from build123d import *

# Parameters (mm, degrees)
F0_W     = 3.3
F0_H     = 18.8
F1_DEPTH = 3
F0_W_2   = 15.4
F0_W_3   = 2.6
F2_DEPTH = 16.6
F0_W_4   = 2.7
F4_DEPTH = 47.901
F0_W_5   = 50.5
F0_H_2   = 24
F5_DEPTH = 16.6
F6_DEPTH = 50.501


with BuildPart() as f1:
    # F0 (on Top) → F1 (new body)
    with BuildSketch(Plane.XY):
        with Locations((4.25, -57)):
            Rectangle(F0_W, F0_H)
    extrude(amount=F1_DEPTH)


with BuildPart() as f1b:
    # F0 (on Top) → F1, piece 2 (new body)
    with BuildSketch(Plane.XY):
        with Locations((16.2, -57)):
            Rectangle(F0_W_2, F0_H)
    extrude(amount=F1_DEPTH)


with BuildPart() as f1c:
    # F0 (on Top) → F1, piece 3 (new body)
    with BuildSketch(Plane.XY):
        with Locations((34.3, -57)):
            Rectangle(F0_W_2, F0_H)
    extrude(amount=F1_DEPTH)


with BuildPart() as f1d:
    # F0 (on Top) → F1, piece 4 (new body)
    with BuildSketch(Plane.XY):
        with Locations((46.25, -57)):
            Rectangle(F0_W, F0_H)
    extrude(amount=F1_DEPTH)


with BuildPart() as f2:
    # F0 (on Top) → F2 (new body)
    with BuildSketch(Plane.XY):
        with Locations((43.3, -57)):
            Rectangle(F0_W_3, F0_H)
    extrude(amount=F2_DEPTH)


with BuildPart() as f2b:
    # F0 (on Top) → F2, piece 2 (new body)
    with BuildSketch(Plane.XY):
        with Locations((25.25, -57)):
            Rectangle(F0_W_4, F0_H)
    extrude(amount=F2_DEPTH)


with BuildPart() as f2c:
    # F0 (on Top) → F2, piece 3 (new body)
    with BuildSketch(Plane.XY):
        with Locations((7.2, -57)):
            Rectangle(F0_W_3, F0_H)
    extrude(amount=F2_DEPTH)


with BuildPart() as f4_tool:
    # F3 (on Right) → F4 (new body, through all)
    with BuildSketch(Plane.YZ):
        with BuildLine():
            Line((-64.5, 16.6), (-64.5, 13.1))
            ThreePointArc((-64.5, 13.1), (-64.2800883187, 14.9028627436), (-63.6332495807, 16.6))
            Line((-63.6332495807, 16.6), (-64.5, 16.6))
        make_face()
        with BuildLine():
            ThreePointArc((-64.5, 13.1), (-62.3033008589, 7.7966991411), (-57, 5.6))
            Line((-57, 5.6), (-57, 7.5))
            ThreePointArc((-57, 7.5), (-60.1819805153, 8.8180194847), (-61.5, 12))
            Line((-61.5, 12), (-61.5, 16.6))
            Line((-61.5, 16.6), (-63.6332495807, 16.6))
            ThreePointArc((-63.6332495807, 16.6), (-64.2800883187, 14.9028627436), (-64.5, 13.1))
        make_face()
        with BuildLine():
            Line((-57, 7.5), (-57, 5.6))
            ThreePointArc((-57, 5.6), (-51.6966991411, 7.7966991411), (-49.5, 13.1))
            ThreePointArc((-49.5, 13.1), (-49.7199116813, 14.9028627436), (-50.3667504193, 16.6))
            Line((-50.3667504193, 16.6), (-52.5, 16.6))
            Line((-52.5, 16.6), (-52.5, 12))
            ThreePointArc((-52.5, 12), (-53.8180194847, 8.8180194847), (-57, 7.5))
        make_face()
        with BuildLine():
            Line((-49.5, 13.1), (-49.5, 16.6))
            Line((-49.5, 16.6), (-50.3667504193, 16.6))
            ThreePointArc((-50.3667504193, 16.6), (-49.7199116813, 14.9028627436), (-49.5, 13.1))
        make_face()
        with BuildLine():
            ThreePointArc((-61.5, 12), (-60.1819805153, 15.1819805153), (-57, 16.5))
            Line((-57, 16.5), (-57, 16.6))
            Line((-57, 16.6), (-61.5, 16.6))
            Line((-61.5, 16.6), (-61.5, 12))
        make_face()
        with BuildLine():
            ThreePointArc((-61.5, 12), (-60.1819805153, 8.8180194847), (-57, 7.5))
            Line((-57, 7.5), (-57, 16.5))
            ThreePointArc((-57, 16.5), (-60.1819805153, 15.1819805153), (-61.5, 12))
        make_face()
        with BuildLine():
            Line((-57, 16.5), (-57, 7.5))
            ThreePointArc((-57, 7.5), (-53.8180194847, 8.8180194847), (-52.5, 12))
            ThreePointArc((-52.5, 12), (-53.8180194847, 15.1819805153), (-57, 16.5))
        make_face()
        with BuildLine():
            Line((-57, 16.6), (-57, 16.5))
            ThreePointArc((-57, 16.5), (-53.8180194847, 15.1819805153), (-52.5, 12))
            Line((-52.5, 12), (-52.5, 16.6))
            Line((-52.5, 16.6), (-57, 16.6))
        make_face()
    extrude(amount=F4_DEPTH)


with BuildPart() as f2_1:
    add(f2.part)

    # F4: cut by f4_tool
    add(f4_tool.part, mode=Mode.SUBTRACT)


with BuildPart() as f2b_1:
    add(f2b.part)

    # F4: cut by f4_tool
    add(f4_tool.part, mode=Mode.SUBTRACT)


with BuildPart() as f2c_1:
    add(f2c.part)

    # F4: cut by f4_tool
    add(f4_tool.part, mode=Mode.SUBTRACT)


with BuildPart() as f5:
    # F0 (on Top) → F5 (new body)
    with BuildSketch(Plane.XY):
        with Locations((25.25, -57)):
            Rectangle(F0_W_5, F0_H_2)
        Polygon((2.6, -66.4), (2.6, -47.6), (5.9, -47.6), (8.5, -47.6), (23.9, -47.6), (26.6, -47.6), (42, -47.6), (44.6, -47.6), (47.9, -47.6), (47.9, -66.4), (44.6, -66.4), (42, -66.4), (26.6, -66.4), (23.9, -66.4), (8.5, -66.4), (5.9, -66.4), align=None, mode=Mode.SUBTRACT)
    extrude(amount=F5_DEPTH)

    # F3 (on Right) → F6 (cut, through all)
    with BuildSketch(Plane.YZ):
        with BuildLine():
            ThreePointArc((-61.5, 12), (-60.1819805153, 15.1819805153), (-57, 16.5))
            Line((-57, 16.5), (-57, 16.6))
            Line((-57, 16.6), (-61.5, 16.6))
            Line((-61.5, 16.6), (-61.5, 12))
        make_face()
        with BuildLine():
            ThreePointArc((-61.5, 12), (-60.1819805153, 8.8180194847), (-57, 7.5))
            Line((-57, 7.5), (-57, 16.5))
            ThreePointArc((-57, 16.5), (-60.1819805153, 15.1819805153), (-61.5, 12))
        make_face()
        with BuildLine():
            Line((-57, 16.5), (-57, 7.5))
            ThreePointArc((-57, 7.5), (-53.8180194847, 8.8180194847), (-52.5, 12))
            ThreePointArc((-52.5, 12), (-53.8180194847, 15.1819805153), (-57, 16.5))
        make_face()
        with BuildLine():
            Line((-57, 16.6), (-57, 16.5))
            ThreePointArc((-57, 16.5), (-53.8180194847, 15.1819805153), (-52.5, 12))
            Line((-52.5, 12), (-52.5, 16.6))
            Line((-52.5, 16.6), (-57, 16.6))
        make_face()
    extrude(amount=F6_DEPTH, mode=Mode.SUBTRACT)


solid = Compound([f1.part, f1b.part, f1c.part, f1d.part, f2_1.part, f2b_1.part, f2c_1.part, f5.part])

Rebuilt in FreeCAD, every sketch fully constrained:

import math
import FreeCAD as App
import Part
import Sketcher
from FreeCAD import Vector


def add_polygon(sketch, points):
    """Adds a closed chain of lines whose ends are joined by coincident constraints."""
    first, n = sketch.GeometryCount, len(points)
    for a, b in zip(points, points[1:] + points[:1]):
        sketch.addGeometry(Part.LineSegment(App.Vector(*a, 0), App.Vector(*b, 0)), False)
    for i in range(n):
        sketch.addConstraint(Sketcher.Constraint("Coincident", first + i, 2, first + (i + 1) % n, 1))

doc = App.newDocument("Part")
params = doc.addObject("Spreadsheet::Sheet", "Params")
for row, (alias, value) in enumerate([
    ("sketch1_width", "3.3 mm"),
    ("sketch1_height", "18.8 mm"),
    ("pad1_length", "3 mm"),
    ("sketch2_width", "15.4 mm"),
    ("sketch2_height", "18.8 mm"),
    ("pad2_length", "3 mm"),
    ("sketch3_width", "15.4 mm"),
    ("sketch3_height", "18.8 mm"),
    ("pad3_length", "3 mm"),
    ("sketch4_width", "3.3 mm"),
    ("sketch4_height", "18.8 mm"),
    ("pad4_length", "3 mm"),
    ("sketch5_width", "2.6 mm"),
    ("sketch5_height", "18.8 mm"),
    ("pad5_length", "16.6 mm"),
    ("sketch6_width", "2.7 mm"),
    ("sketch6_height", "18.8 mm"),
    ("pad6_length", "16.6 mm"),
    ("sketch7_width", "2.6 mm"),
    ("sketch7_height", "18.8 mm"),
    ("pad7_length", "16.6 mm"),
    ("sketch8_radius", "7.5 mm"),
    ("sketch8_height", "3.5 mm"),
    ("pad8_length", "47.901 mm"),
    ("sketch9_height", "24 mm"),
    ("sketch9_width", "50.5 mm"),
    ("sketch9_width2", "45.3 mm"),
    ("sketch9_height2", "18.8 mm"),
    ("pad9_length", "16.6 mm"),
    ("sketch10_radius", "4.5 mm"),
    ("sketch10_height", "4.6 mm"),
], start=1):
    params.set(f"A{row}", alias)
    params.set(f"B{row}", "=" + value)
    params.setAlias(f"B{row}", alias)

body = doc.addObject("PartDesign::Body", "Body")

# Sketch on XY plane
sketch1 = body.newObject("Sketcher::SketchObject", "Sketch")
sketch1.AttachmentSupport = (doc.getObject("XY_Plane"), [""])
sketch1.MapMode = "FlatFace"
add_polygon(sketch1, [(2.6, -47.6), (2.6, -66.4), (5.9, -66.4), (5.9, -47.6)])  # lines 0-3
sketch1.addConstraint(Sketcher.Constraint("Vertical", 0))
sketch1.addConstraint(Sketcher.Constraint("Horizontal", 1))
sketch1.addConstraint(Sketcher.Constraint("Vertical", 2))
sketch1.addConstraint(Sketcher.Constraint("Horizontal", 3))
sketch1.addConstraint(Sketcher.Constraint("DistanceX", 1, 1, 1, 2, 3.3))
sketch1.addConstraint(Sketcher.Constraint("DistanceY", 0, 2, 0, 1, 18.8))
sketch1.addConstraint(Sketcher.Constraint("DistanceX", -1, 1, 0, 2, 2.6))
sketch1.addConstraint(Sketcher.Constraint("DistanceY", 0, 2, -1, 1, 66.4))
sketch1.setExpression("Constraints[8]", "Params.sketch1_width")
sketch1.setExpression("Constraints[9]", "Params.sketch1_height")
pad1 = body.newObject("PartDesign::Pad", "Pad")
pad1.Profile = sketch1
pad1.setExpression("Length", "Params.pad1_length")
body2 = doc.addObject("PartDesign::Body", "Body001")

# Sketch on XY plane
sketch2 = body2.newObject("Sketcher::SketchObject", "Sketch001")
sketch2.AttachmentSupport = (doc.getObject("XY_Plane001"), [""])
sketch2.MapMode = "FlatFace"
add_polygon(sketch2, [(8.5, -47.6), (8.5, -66.4), (23.9, -66.4), (23.9, -47.6)])  # lines 0-3
sketch2.addConstraint(Sketcher.Constraint("Vertical", 0))
sketch2.addConstraint(Sketcher.Constraint("Horizontal", 1))
sketch2.addConstraint(Sketcher.Constraint("Vertical", 2))
sketch2.addConstraint(Sketcher.Constraint("Horizontal", 3))
sketch2.addConstraint(Sketcher.Constraint("DistanceX", 1, 1, 1, 2, 15.4))
sketch2.addConstraint(Sketcher.Constraint("DistanceY", 0, 2, 0, 1, 18.8))
sketch2.addConstraint(Sketcher.Constraint("DistanceX", -1, 1, 0, 2, 8.5))
sketch2.addConstraint(Sketcher.Constraint("DistanceY", 0, 2, -1, 1, 66.4))
sketch2.setExpression("Constraints[8]", "Params.sketch2_width")
sketch2.setExpression("Constraints[9]", "Params.sketch2_height")
pad2 = body2.newObject("PartDesign::Pad", "Pad001")
pad2.Profile = sketch2
pad2.setExpression("Length", "Params.pad2_length")
body3 = doc.addObject("PartDesign::Body", "Body002")

# Sketch on XY plane
sketch3 = body3.newObject("Sketcher::SketchObject", "Sketch002")
sketch3.AttachmentSupport = (doc.getObject("XY_Plane002"), [""])
sketch3.MapMode = "FlatFace"
add_polygon(sketch3, [(26.6, -47.6), (26.6, -66.4), (42, -66.4), (42, -47.6)])  # lines 0-3
sketch3.addConstraint(Sketcher.Constraint("Vertical", 0))
sketch3.addConstraint(Sketcher.Constraint("Horizontal", 1))
sketch3.addConstraint(Sketcher.Constraint("Vertical", 2))
sketch3.addConstraint(Sketcher.Constraint("Horizontal", 3))
sketch3.addConstraint(Sketcher.Constraint("DistanceX", 1, 1, 1, 2, 15.4))
sketch3.addConstraint(Sketcher.Constraint("DistanceY", 0, 2, 0, 1, 18.8))
sketch3.addConstraint(Sketcher.Constraint("DistanceX", -1, 1, 1, 2, 42.0))
sketch3.addConstraint(Sketcher.Constraint("DistanceY", 0, 2, -1, 1, 66.4))
sketch3.setExpression("Constraints[8]", "Params.sketch3_width")
sketch3.setExpression("Constraints[9]", "Params.sketch3_height")
pad3 = body3.newObject("PartDesign::Pad", "Pad002")
pad3.Profile = sketch3
pad3.setExpression("Length", "Params.pad3_length")
body4 = doc.addObject("PartDesign::Body", "Body003")

# Sketch on XY plane
sketch4 = body4.newObject("Sketcher::SketchObject", "Sketch003")
sketch4.AttachmentSupport = (doc.getObject("XY_Plane003"), [""])
sketch4.MapMode = "FlatFace"
add_polygon(sketch4, [(44.6, -47.6), (44.6, -66.4), (47.9, -66.4), (47.9, -47.6)])  # lines 0-3
sketch4.addConstraint(Sketcher.Constraint("Vertical", 0))
sketch4.addConstraint(Sketcher.Constraint("Horizontal", 1))
sketch4.addConstraint(Sketcher.Constraint("Vertical", 2))
sketch4.addConstraint(Sketcher.Constraint("Horizontal", 3))
sketch4.addConstraint(Sketcher.Constraint("DistanceX", 1, 1, 1, 2, 3.3))
sketch4.addConstraint(Sketcher.Constraint("DistanceY", 0, 2, 0, 1, 18.8))
sketch4.addConstraint(Sketcher.Constraint("DistanceX", -1, 1, 0, 2, 44.6))
sketch4.addConstraint(Sketcher.Constraint("DistanceY", 0, 2, -1, 1, 66.4))
sketch4.setExpression("Constraints[8]", "Params.sketch4_width")
sketch4.setExpression("Constraints[9]", "Params.sketch4_height")
pad4 = body4.newObject("PartDesign::Pad", "Pad003")
pad4.Profile = sketch4
pad4.setExpression("Length", "Params.pad4_length")
body5 = doc.addObject("PartDesign::Body", "Body004")

# Sketch on XY plane
sketch5 = body5.newObject("Sketcher::SketchObject", "Sketch004")
sketch5.AttachmentSupport = (doc.getObject("XY_Plane004"), [""])
sketch5.MapMode = "FlatFace"
add_polygon(sketch5, [(42, -47.6), (42, -66.4), (44.6, -66.4), (44.6, -47.6)])  # lines 0-3
sketch5.addConstraint(Sketcher.Constraint("Vertical", 0))
sketch5.addConstraint(Sketcher.Constraint("Horizontal", 1))
sketch5.addConstraint(Sketcher.Constraint("Vertical", 2))
sketch5.addConstraint(Sketcher.Constraint("Horizontal", 3))
sketch5.addConstraint(Sketcher.Constraint("DistanceX", 1, 1, 1, 2, 2.6))
sketch5.addConstraint(Sketcher.Constraint("DistanceY", 0, 2, 0, 1, 18.8))
sketch5.addConstraint(Sketcher.Constraint("DistanceX", -1, 1, 0, 2, 42.0))
sketch5.addConstraint(Sketcher.Constraint("DistanceY", 0, 2, -1, 1, 66.4))
sketch5.setExpression("Constraints[8]", "Params.sketch5_width")
sketch5.setExpression("Constraints[9]", "Params.sketch5_height")
pad5 = body5.newObject("PartDesign::Pad", "Pad004")
pad5.Profile = sketch5
pad5.setExpression("Length", "Params.pad5_length")
body6 = doc.addObject("PartDesign::Body", "Body005")

# Sketch on XY plane
sketch6 = body6.newObject("Sketcher::SketchObject", "Sketch005")
sketch6.AttachmentSupport = (doc.getObject("XY_Plane005"), [""])
sketch6.MapMode = "FlatFace"
add_polygon(sketch6, [(23.9, -47.6), (23.9, -66.4), (26.6, -66.4), (26.6, -47.6)])  # lines 0-3
sketch6.addConstraint(Sketcher.Constraint("Vertical", 0))
sketch6.addConstraint(Sketcher.Constraint("Horizontal", 1))
sketch6.addConstraint(Sketcher.Constraint("Vertical", 2))
sketch6.addConstraint(Sketcher.Constraint("Horizontal", 3))
sketch6.addConstraint(Sketcher.Constraint("DistanceX", 1, 1, 1, 2, 2.7))
sketch6.addConstraint(Sketcher.Constraint("DistanceY", 0, 2, 0, 1, 18.8))
sketch6.addConstraint(Sketcher.Constraint("DistanceX", -1, 1, 0, 2, 23.9))
sketch6.addConstraint(Sketcher.Constraint("DistanceY", 0, 2, -1, 1, 66.4))
sketch6.setExpression("Constraints[8]", "Params.sketch6_width")
sketch6.setExpression("Constraints[9]", "Params.sketch6_height")
pad6 = body6.newObject("PartDesign::Pad", "Pad005")
pad6.Profile = sketch6
pad6.setExpression("Length", "Params.pad6_length")
body7 = doc.addObject("PartDesign::Body", "Body006")

# Sketch on XY plane
sketch7 = body7.newObject("Sketcher::SketchObject", "Sketch006")
sketch7.AttachmentSupport = (doc.getObject("XY_Plane006"), [""])
sketch7.MapMode = "FlatFace"
add_polygon(sketch7, [(5.9, -47.6), (5.9, -66.4), (8.5, -66.4), (8.5, -47.6)])  # lines 0-3
sketch7.addConstraint(Sketcher.Constraint("Vertical", 0))
sketch7.addConstraint(Sketcher.Constraint("Horizontal", 1))
sketch7.addConstraint(Sketcher.Constraint("Vertical", 2))
sketch7.addConstraint(Sketcher.Constraint("Horizontal", 3))
sketch7.addConstraint(Sketcher.Constraint("DistanceX", 1, 1, 1, 2, 2.6))
sketch7.addConstraint(Sketcher.Constraint("DistanceY", 0, 2, 0, 1, 18.8))
sketch7.addConstraint(Sketcher.Constraint("DistanceX", -1, 1, 0, 2, 5.9))
sketch7.addConstraint(Sketcher.Constraint("DistanceY", 0, 2, -1, 1, 66.4))
sketch7.setExpression("Constraints[8]", "Params.sketch7_width")
sketch7.setExpression("Constraints[9]", "Params.sketch7_height")
pad7 = body7.newObject("PartDesign::Pad", "Pad006")
pad7.Profile = sketch7
pad7.setExpression("Length", "Params.pad7_length")
body8 = doc.addObject("PartDesign::Body", "Body007")

# Sketch on YZ plane
sketch8 = body8.newObject("Sketcher::SketchObject", "Sketch007")
sketch8.AttachmentSupport = (doc.getObject("YZ_Plane007"), [""])
sketch8.MapMode = "FlatFace"
sketch8.addGeometry(Part.LineSegment(Vector(-64.5, 16.6, 0), Vector(-64.5, 13.1, 0)), False)
sketch8.addGeometry(Part.ArcOfCircle(Part.Circle(Vector(-57, 13.1, 0), Vector(0, 0, 1), 7.5), math.radians(180), math.radians(360)), False)
sketch8.addGeometry(Part.LineSegment(Vector(-49.5, 13.1, 0), Vector(-49.5, 16.6, 0)), False)
sketch8.addGeometry(Part.LineSegment(Vector(-49.5, 16.6, 0), Vector(-64.5, 16.6, 0)), False)
sketch8.addConstraint(Sketcher.Constraint("Tangent", 0, 2, 1, 1))
sketch8.addConstraint(Sketcher.Constraint("Tangent", 1, 2, 2, 1))
sketch8.addConstraint(Sketcher.Constraint("Coincident", 2, 2, 3, 1))
sketch8.addConstraint(Sketcher.Constraint("Coincident", 3, 2, 0, 1))
sketch8.addConstraint(Sketcher.Constraint("Vertical", 0))
sketch8.addConstraint(Sketcher.Constraint("Vertical", 2))
sketch8.addConstraint(Sketcher.Constraint("Horizontal", 3))
sketch8.addConstraint(Sketcher.Constraint("Radius", 1, 7.5))
sketch8.addConstraint(Sketcher.Constraint("DistanceY", 0, 2, 0, 1, 3.5))
sketch8.addConstraint(Sketcher.Constraint("DistanceX", 1, 3, -1, 1, 57.0))
sketch8.addConstraint(Sketcher.Constraint("DistanceY", -1, 1, 1, 3, 13.1))
sketch8.setExpression("Constraints[7]", "Params.sketch8_radius")
sketch8.setExpression("Constraints[8]", "Params.sketch8_height")
pad8 = body8.newObject("PartDesign::Pad", "Pad007")
pad8.Profile = sketch8
pad8.setExpression("Length", "Params.pad8_length")
doc.recompute()

body9 = doc.addObject("PartDesign::Body", "Body008")
body9.BaseFeature = body8
boolean = body5.newObject("PartDesign::Boolean", "Boolean")
boolean.Type = "Cut"
boolean.addObjects([body9])
doc.recompute()

body10 = doc.addObject("PartDesign::Body", "Body009")
body10.BaseFeature = body8
boolean2 = body6.newObject("PartDesign::Boolean", "Boolean001")
boolean2.Type = "Cut"
boolean2.addObjects([body10])
doc.recompute()

boolean3 = body7.newObject("PartDesign::Boolean", "Boolean002")
boolean3.Type = "Cut"
boolean3.addObjects([body8])
body11 = doc.addObject("PartDesign::Body", "Body010")

# Sketch on XY plane
sketch9 = body11.newObject("Sketcher::SketchObject", "Sketch008")
sketch9.AttachmentSupport = (doc.getObject("XY_Plane010"), [""])
sketch9.MapMode = "FlatFace"
add_polygon(sketch9, [(0, -45), (0, -69), (50.5, -69), (50.5, -45)])  # lines 0-3
add_polygon(sketch9, [(47.9, -66.4), (2.6, -66.4), (2.6, -47.6), (47.9, -47.6)])  # lines 4-7
sketch9.addConstraint(Sketcher.Constraint("Vertical", 0))
sketch9.addConstraint(Sketcher.Constraint("Horizontal", 1))
sketch9.addConstraint(Sketcher.Constraint("Vertical", 2))
sketch9.addConstraint(Sketcher.Constraint("Horizontal", 3))
sketch9.addConstraint(Sketcher.Constraint("Horizontal", 4))
sketch9.addConstraint(Sketcher.Constraint("Vertical", 5))
sketch9.addConstraint(Sketcher.Constraint("Horizontal", 6))
sketch9.addConstraint(Sketcher.Constraint("Vertical", 7))
sketch9.addConstraint(Sketcher.Constraint("PointOnObject", 0, 2, -2))
sketch9.addConstraint(Sketcher.Constraint("DistanceY", 0, 2, 0, 1, 24.0))
sketch9.addConstraint(Sketcher.Constraint("DistanceX", 1, 1, 1, 2, 50.5))
sketch9.addConstraint(Sketcher.Constraint("DistanceX", 4, 2, 4, 1, 45.3))
sketch9.addConstraint(Sketcher.Constraint("DistanceY", 5, 1, 5, 2, 18.8))
sketch9.addConstraint(Sketcher.Constraint("DistanceY", 0, 2, -1, 1, 69.0))
sketch9.addConstraint(Sketcher.Constraint("DistanceX", -1, 1, 4, 2, 2.6))
sketch9.addConstraint(Sketcher.Constraint("DistanceY", 4, 2, -1, 1, 66.4))
sketch9.setExpression("Constraints[17]", "Params.sketch9_height")
sketch9.setExpression("Constraints[18]", "Params.sketch9_width")
sketch9.setExpression("Constraints[19]", "Params.sketch9_width2")
sketch9.setExpression("Constraints[20]", "Params.sketch9_height2")
pad9 = body11.newObject("PartDesign::Pad", "Pad008")
pad9.Profile = sketch9
pad9.setExpression("Length", "Params.pad9_length")

# Sketch on YZ plane
sketch10 = body11.newObject("Sketcher::SketchObject", "Sketch009")
sketch10.AttachmentSupport = (doc.getObject("YZ_Plane010"), [""])
sketch10.MapMode = "FlatFace"
sketch10.addGeometry(Part.LineSegment(Vector(-61.5, 16.6, 0), Vector(-61.5, 12, 0)), False)
sketch10.addGeometry(Part.ArcOfCircle(Part.Circle(Vector(-57, 12, 0), Vector(0, 0, 1), 4.5), math.radians(180), math.radians(270)), False)
sketch10.addGeometry(Part.ArcOfCircle(Part.Circle(Vector(-57, 12, 0), Vector(0, 0, 1), 4.5), math.radians(-90), math.radians(0)), False)
sketch10.addGeometry(Part.LineSegment(Vector(-52.5, 12, 0), Vector(-52.5, 16.6, 0)), False)
sketch10.addGeometry(Part.LineSegment(Vector(-52.5, 16.6, 0), Vector(-61.5, 16.6, 0)), False)
sketch10.addConstraint(Sketcher.Constraint("Tangent", 0, 2, 1, 1))
sketch10.addConstraint(Sketcher.Constraint("Tangent", 1, 2, 2, 1))
sketch10.addConstraint(Sketcher.Constraint("Tangent", 2, 2, 3, 1))
sketch10.addConstraint(Sketcher.Constraint("Coincident", 3, 2, 4, 1))
sketch10.addConstraint(Sketcher.Constraint("Coincident", 4, 2, 0, 1))
sketch10.addConstraint(Sketcher.Constraint("Vertical", 0))
sketch10.addConstraint(Sketcher.Constraint("Vertical", 3))
sketch10.addConstraint(Sketcher.Constraint("Horizontal", 4))
sketch10.addConstraint(Sketcher.Constraint("Equal", 1, 2))
sketch10.addConstraint(Sketcher.Constraint("Vertical", 2, 3, 1, 2))
sketch10.addConstraint(Sketcher.Constraint("Radius", 1, 4.5))
sketch10.addConstraint(Sketcher.Constraint("DistanceY", 0, 2, 0, 1, 4.6))
sketch10.addConstraint(Sketcher.Constraint("DistanceX", 1, 3, -1, 1, 57.0))
sketch10.addConstraint(Sketcher.Constraint("DistanceY", -1, 1, 1, 3, 12.0))
sketch10.setExpression("Constraints[10]", "Params.sketch10_radius")
sketch10.setExpression("Constraints[11]", "Params.sketch10_height")
pocket1 = body11.newObject("PartDesign::Pocket", "Pocket")
pocket1.Profile = sketch10
pocket1.Type = "ThroughAll"
pocket1.Reversed = True

doc.recompute()
